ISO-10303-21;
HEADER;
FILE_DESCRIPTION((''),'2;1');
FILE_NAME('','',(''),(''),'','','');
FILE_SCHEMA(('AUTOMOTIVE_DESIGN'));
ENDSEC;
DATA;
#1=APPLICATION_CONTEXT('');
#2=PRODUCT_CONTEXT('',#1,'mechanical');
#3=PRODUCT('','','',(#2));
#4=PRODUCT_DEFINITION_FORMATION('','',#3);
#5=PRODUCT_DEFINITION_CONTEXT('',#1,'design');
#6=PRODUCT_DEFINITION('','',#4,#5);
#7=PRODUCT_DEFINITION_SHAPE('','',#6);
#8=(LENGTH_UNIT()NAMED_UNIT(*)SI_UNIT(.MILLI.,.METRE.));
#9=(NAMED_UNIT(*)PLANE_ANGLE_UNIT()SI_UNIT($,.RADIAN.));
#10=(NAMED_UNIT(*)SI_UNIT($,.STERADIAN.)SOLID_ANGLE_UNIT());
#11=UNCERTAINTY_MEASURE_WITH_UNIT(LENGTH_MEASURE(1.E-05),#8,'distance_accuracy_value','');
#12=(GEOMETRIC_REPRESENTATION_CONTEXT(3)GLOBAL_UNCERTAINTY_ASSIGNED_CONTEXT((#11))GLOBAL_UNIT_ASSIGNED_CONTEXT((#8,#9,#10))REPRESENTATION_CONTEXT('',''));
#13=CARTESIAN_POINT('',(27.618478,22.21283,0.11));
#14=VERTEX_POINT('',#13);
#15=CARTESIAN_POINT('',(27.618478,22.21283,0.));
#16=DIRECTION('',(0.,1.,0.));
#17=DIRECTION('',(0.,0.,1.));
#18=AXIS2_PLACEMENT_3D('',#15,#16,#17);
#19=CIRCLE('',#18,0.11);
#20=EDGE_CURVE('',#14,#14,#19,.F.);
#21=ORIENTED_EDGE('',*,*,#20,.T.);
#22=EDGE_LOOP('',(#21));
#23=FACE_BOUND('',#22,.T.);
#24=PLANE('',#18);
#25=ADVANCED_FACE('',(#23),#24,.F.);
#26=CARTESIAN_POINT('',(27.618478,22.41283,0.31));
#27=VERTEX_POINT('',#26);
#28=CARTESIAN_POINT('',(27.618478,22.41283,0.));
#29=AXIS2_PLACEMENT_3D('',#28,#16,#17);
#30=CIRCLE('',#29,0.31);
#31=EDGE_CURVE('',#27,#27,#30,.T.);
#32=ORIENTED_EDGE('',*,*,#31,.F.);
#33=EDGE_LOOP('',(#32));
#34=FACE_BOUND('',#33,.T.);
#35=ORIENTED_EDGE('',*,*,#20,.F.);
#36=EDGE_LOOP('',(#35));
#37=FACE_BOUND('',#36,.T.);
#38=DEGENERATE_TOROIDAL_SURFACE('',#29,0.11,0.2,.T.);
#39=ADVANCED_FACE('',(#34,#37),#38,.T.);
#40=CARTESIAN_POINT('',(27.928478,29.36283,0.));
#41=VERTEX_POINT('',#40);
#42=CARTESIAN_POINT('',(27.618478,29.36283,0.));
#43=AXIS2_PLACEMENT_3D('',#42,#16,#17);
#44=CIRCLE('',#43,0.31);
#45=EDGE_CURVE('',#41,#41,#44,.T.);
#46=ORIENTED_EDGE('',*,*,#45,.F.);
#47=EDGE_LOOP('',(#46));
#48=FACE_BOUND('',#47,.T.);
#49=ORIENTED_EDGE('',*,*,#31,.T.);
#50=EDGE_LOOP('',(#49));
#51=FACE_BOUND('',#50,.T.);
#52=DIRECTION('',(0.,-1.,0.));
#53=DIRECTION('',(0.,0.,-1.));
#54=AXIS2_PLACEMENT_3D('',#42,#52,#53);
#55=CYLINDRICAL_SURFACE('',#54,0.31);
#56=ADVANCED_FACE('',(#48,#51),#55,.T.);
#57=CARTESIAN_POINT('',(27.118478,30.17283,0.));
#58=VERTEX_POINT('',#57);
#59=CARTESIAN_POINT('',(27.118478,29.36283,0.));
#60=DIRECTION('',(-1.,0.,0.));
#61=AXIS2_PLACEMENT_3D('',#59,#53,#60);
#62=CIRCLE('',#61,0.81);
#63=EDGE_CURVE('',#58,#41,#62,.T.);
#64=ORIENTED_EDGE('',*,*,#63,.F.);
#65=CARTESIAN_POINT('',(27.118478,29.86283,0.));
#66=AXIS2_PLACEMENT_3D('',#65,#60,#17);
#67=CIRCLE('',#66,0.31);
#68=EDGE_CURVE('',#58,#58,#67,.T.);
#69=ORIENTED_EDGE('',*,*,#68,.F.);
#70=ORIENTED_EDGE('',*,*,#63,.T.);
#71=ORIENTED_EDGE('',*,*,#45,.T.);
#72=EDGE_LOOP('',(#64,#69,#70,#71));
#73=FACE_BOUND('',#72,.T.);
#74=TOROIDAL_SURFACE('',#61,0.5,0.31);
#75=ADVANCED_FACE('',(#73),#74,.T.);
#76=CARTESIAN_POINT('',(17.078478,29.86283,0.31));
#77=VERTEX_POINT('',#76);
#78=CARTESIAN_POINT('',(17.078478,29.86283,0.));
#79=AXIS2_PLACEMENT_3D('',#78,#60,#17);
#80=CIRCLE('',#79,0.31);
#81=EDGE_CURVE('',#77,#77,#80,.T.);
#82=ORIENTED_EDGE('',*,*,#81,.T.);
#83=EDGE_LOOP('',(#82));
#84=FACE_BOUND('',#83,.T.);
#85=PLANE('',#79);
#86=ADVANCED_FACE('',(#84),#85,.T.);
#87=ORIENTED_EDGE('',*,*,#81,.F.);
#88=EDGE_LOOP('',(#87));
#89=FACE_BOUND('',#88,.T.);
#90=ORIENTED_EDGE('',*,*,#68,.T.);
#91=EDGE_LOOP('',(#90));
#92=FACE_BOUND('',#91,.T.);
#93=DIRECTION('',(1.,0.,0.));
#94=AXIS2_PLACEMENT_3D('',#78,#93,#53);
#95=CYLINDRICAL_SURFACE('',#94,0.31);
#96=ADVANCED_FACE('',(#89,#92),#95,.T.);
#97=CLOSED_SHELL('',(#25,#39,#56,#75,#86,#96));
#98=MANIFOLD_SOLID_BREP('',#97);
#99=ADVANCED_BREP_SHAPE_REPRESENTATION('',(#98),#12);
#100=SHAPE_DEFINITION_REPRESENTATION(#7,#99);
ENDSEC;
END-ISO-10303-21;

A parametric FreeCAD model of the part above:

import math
import FreeCAD as App
import Part
import Sketcher
from FreeCAD import Vector
Q = App.Units.Quantity


def edges_at(feature, points):
    """Names of the edges that pass closest to the given points."""
    edges = feature.Shape.Edges
    near = lambda p: min(range(len(edges)), key=lambda i: edges[i].distToShape(Part.Vertex(*p))[0])
    return sorted({f"Edge{near(p) + 1}" for p in points})

doc = App.newDocument("Part")
body = doc.addObject("PartDesign::Body", "Body")

sketch1 = body.newObject("Sketcher::SketchObject", "Sketch")
sketch1.AttachmentSupport = (doc.getObject("YZ_Plane"), [""])
sketch1.MapMode = "FlatFace"
sketch1.AttachmentOffset = App.Placement(Vector(0, 0, 17.078478), App.Rotation())
sketch1.addGeometry(Part.Circle(Vector(29.86, 0, 0), Vector(0, 0, 1), 0.31), False)
sketch1.addConstraint([
    Sketcher.Constraint("PointOnObject", 0, 3, -1),
    Sketcher.Constraint("Diameter", 0, Q("0.62 mm")),
    Sketcher.Constraint("DistanceX", -1, 1, 0, 3, Q("29.86283 mm")),
])

sketch2 = body.newObject("Sketcher::SketchObject", "Sketch001")
sketch2.AttachmentSupport = (doc.getObject("XY_Plane"), [""])
sketch2.MapMode = "FlatFace"
sketch2.addGeometry([
    Part.LineSegment(Vector(17.08, 29.86, 0), Vector(27.12, 29.86, 0)),
    Part.ArcOfCircle(Part.Circle(Vector(27.12, 29.36, 0), Vector(0, 0, 1), 0.5), math.radians(0), math.radians(90)),
    Part.LineSegment(Vector(27.62, 29.36, 0), Vector(27.62, 22.21, 0)),
], False)
sketch2.addConstraint([
    Sketcher.Constraint("Tangent", 0, 2, 1, 2),
    Sketcher.Constraint("Tangent", 1, 1, 2, 1),
    Sketcher.Constraint("Horizontal", 0),
    Sketcher.Constraint("Vertical", 2),
    Sketcher.Constraint("Radius", 1, Q("0.5 mm")),
    Sketcher.Constraint("DistanceX", 0, 1, 0, 2, Q("10.04 mm")),
    Sketcher.Constraint("DistanceY", 2, 2, 2, 1, Q("7.15 mm")),
    Sketcher.Constraint("DistanceY", -1, 1, 1, 3, Q("29.36283 mm")),
    Sketcher.Constraint("DistanceX", -1, 1, 1, 3, Q("27.118478 mm")),
])
doc.recompute()

additivepipe = body.newObject("PartDesign::AdditivePipe", "AdditivePipe")
additivepipe.Profile = sketch1
additivepipe.Spine = (sketch2, ["Edge1", "Edge2", "Edge3"])
doc.recompute()

fillet = body.newObject("PartDesign::Fillet", "Fillet")
fillet.Base = (additivepipe, edges_at(additivepipe, [(27.618, 22.213, -0.31)]))
fillet.Radius = 0.2

doc.recompute()
